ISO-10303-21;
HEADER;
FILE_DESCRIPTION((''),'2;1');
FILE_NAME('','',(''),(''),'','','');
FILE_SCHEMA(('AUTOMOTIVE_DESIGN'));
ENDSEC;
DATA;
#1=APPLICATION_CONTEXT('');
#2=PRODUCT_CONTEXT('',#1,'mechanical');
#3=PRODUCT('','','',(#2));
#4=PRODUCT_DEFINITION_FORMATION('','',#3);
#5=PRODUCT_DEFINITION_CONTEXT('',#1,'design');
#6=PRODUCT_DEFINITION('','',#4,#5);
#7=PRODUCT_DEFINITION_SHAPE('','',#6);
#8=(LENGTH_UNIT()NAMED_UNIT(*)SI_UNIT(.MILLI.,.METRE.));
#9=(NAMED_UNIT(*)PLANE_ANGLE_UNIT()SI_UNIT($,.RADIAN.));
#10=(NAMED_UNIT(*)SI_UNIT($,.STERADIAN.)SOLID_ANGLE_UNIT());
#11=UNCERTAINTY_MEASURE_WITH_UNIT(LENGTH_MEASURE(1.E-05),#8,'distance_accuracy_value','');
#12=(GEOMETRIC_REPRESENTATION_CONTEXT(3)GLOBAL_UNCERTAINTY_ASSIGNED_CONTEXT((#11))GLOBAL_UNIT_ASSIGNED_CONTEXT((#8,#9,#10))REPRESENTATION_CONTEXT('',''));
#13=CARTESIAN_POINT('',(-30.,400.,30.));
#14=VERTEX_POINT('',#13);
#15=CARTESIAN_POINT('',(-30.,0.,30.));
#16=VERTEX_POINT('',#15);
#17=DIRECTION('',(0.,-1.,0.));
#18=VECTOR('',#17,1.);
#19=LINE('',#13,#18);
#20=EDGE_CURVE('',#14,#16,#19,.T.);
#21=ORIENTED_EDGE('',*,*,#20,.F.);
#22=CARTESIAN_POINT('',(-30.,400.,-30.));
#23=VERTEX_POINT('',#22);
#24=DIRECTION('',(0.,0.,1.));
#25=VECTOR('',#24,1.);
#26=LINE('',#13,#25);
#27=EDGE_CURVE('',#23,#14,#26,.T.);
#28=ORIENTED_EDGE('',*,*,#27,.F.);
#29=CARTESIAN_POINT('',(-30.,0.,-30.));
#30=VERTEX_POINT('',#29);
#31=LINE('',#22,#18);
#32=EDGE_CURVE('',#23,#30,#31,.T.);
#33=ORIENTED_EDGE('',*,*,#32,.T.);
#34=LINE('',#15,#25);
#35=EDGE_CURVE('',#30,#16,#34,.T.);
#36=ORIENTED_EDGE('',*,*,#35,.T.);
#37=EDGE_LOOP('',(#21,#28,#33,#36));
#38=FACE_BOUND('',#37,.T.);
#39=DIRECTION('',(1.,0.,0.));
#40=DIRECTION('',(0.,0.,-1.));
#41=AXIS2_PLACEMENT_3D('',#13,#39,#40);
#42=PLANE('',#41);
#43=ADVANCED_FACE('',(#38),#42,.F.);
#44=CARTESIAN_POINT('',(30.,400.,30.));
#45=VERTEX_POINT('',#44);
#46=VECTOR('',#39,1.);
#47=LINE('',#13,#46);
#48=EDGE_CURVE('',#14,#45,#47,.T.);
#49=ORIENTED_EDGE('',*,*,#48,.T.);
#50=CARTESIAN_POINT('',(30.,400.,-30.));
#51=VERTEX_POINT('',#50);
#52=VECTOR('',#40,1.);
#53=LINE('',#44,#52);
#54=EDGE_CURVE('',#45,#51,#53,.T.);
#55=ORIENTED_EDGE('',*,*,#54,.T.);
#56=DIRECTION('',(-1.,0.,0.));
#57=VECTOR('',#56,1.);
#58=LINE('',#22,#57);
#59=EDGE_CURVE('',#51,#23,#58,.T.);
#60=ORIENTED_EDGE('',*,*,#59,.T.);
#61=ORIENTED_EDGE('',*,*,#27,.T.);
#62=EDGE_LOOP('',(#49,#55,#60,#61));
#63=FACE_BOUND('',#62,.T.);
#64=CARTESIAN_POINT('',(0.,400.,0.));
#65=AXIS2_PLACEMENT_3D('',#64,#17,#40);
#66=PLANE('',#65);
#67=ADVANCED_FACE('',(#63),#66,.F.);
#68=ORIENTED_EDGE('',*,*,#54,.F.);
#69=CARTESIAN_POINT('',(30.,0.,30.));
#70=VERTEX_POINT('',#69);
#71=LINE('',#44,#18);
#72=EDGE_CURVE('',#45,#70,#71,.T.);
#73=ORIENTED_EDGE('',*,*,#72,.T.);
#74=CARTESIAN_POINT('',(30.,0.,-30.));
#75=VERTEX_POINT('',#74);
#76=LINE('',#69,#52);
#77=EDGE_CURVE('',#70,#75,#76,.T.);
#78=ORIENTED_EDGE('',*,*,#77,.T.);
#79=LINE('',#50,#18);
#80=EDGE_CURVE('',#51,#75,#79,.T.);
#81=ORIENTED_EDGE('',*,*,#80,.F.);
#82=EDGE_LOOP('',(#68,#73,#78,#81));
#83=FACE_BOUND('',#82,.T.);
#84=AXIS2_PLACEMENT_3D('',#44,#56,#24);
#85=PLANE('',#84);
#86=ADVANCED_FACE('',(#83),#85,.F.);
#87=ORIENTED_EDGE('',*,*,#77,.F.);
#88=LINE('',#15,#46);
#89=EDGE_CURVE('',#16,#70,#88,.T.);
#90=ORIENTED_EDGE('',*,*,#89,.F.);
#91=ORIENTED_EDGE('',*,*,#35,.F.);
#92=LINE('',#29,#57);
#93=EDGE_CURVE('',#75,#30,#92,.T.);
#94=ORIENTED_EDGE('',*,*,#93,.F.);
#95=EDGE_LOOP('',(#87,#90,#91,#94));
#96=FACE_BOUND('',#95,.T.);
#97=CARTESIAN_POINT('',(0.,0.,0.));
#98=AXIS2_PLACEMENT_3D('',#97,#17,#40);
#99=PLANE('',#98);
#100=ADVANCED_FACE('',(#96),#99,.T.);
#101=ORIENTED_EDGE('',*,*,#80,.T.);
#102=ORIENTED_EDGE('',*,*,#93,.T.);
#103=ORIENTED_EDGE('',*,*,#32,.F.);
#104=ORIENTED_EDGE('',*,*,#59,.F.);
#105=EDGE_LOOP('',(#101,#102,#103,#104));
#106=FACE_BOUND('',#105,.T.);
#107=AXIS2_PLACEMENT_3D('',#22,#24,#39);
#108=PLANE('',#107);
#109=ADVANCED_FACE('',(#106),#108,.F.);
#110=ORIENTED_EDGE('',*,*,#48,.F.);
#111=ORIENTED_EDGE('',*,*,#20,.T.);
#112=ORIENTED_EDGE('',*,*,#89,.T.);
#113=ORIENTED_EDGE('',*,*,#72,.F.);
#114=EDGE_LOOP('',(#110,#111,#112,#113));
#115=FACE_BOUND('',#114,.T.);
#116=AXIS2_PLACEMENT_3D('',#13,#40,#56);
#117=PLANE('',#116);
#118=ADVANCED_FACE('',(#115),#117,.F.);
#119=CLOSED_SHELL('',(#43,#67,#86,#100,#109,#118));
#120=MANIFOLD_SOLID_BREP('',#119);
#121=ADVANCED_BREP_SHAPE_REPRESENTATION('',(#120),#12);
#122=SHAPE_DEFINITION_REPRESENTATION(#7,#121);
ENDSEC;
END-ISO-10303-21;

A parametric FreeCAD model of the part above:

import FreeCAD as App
import Part
import Sketcher
from FreeCAD import Vector
Q = App.Units.Quantity

doc = App.newDocument("Part")
body = doc.addObject("PartDesign::Body", "Body")

sketch1 = doc.addObject("Sketcher::SketchObject", "Sketch")
body.addObject(sketch1)
sketch1.AttachmentSupport = (doc.XZ_Plane, [""])
sketch1.MapMode = "FlatFace"
sketch1.addGeometry(Part.LineSegment(Vector(-30, -30, 0), Vector(-30, 30, 0)), False)
sketch1.addGeometry(Part.LineSegment(Vector(-30, 30, 0), Vector(30, 30, 0)), False)
sketch1.addGeometry(Part.LineSegment(Vector(30, 30, 0), Vector(30, -30, 0)), False)
sketch1.addGeometry(Part.LineSegment(Vector(30, -30, 0), Vector(-30, -30, 0)), False)
sketch1.addConstraint(Sketcher.Constraint("Coincident", 0, 2, 1, 1))
sketch1.addConstraint(Sketcher.Constraint("Coincident", 1, 2, 2, 1))
sketch1.addConstraint(Sketcher.Constraint("Coincident", 2, 2, 3, 1))
sketch1.addConstraint(Sketcher.Constraint("Coincident", 3, 2, 0, 1))
sketch1.addConstraint(Sketcher.Constraint("Vertical", 0))
sketch1.addConstraint(Sketcher.Constraint("Horizontal", 1))
sketch1.addConstraint(Sketcher.Constraint("Vertical", 2))
sketch1.addConstraint(Sketcher.Constraint("Horizontal", 3))
sketch1.addConstraint(Sketcher.Constraint("Symmetric", 0, 2, 2, 2, -1, 1))
sketch1.addConstraint(Sketcher.Constraint("Equal", 3, 0))
sketch1.addConstraint(Sketcher.Constraint("DistanceX", 1, 1, 1, 2, Q("60 mm")))
pad1 = doc.addObject("PartDesign::Pad", "Pad")
body.addObject(pad1)
pad1.Profile = sketch1
pad1.Length = 400
pad1.Reversed = True

doc.recompute()
